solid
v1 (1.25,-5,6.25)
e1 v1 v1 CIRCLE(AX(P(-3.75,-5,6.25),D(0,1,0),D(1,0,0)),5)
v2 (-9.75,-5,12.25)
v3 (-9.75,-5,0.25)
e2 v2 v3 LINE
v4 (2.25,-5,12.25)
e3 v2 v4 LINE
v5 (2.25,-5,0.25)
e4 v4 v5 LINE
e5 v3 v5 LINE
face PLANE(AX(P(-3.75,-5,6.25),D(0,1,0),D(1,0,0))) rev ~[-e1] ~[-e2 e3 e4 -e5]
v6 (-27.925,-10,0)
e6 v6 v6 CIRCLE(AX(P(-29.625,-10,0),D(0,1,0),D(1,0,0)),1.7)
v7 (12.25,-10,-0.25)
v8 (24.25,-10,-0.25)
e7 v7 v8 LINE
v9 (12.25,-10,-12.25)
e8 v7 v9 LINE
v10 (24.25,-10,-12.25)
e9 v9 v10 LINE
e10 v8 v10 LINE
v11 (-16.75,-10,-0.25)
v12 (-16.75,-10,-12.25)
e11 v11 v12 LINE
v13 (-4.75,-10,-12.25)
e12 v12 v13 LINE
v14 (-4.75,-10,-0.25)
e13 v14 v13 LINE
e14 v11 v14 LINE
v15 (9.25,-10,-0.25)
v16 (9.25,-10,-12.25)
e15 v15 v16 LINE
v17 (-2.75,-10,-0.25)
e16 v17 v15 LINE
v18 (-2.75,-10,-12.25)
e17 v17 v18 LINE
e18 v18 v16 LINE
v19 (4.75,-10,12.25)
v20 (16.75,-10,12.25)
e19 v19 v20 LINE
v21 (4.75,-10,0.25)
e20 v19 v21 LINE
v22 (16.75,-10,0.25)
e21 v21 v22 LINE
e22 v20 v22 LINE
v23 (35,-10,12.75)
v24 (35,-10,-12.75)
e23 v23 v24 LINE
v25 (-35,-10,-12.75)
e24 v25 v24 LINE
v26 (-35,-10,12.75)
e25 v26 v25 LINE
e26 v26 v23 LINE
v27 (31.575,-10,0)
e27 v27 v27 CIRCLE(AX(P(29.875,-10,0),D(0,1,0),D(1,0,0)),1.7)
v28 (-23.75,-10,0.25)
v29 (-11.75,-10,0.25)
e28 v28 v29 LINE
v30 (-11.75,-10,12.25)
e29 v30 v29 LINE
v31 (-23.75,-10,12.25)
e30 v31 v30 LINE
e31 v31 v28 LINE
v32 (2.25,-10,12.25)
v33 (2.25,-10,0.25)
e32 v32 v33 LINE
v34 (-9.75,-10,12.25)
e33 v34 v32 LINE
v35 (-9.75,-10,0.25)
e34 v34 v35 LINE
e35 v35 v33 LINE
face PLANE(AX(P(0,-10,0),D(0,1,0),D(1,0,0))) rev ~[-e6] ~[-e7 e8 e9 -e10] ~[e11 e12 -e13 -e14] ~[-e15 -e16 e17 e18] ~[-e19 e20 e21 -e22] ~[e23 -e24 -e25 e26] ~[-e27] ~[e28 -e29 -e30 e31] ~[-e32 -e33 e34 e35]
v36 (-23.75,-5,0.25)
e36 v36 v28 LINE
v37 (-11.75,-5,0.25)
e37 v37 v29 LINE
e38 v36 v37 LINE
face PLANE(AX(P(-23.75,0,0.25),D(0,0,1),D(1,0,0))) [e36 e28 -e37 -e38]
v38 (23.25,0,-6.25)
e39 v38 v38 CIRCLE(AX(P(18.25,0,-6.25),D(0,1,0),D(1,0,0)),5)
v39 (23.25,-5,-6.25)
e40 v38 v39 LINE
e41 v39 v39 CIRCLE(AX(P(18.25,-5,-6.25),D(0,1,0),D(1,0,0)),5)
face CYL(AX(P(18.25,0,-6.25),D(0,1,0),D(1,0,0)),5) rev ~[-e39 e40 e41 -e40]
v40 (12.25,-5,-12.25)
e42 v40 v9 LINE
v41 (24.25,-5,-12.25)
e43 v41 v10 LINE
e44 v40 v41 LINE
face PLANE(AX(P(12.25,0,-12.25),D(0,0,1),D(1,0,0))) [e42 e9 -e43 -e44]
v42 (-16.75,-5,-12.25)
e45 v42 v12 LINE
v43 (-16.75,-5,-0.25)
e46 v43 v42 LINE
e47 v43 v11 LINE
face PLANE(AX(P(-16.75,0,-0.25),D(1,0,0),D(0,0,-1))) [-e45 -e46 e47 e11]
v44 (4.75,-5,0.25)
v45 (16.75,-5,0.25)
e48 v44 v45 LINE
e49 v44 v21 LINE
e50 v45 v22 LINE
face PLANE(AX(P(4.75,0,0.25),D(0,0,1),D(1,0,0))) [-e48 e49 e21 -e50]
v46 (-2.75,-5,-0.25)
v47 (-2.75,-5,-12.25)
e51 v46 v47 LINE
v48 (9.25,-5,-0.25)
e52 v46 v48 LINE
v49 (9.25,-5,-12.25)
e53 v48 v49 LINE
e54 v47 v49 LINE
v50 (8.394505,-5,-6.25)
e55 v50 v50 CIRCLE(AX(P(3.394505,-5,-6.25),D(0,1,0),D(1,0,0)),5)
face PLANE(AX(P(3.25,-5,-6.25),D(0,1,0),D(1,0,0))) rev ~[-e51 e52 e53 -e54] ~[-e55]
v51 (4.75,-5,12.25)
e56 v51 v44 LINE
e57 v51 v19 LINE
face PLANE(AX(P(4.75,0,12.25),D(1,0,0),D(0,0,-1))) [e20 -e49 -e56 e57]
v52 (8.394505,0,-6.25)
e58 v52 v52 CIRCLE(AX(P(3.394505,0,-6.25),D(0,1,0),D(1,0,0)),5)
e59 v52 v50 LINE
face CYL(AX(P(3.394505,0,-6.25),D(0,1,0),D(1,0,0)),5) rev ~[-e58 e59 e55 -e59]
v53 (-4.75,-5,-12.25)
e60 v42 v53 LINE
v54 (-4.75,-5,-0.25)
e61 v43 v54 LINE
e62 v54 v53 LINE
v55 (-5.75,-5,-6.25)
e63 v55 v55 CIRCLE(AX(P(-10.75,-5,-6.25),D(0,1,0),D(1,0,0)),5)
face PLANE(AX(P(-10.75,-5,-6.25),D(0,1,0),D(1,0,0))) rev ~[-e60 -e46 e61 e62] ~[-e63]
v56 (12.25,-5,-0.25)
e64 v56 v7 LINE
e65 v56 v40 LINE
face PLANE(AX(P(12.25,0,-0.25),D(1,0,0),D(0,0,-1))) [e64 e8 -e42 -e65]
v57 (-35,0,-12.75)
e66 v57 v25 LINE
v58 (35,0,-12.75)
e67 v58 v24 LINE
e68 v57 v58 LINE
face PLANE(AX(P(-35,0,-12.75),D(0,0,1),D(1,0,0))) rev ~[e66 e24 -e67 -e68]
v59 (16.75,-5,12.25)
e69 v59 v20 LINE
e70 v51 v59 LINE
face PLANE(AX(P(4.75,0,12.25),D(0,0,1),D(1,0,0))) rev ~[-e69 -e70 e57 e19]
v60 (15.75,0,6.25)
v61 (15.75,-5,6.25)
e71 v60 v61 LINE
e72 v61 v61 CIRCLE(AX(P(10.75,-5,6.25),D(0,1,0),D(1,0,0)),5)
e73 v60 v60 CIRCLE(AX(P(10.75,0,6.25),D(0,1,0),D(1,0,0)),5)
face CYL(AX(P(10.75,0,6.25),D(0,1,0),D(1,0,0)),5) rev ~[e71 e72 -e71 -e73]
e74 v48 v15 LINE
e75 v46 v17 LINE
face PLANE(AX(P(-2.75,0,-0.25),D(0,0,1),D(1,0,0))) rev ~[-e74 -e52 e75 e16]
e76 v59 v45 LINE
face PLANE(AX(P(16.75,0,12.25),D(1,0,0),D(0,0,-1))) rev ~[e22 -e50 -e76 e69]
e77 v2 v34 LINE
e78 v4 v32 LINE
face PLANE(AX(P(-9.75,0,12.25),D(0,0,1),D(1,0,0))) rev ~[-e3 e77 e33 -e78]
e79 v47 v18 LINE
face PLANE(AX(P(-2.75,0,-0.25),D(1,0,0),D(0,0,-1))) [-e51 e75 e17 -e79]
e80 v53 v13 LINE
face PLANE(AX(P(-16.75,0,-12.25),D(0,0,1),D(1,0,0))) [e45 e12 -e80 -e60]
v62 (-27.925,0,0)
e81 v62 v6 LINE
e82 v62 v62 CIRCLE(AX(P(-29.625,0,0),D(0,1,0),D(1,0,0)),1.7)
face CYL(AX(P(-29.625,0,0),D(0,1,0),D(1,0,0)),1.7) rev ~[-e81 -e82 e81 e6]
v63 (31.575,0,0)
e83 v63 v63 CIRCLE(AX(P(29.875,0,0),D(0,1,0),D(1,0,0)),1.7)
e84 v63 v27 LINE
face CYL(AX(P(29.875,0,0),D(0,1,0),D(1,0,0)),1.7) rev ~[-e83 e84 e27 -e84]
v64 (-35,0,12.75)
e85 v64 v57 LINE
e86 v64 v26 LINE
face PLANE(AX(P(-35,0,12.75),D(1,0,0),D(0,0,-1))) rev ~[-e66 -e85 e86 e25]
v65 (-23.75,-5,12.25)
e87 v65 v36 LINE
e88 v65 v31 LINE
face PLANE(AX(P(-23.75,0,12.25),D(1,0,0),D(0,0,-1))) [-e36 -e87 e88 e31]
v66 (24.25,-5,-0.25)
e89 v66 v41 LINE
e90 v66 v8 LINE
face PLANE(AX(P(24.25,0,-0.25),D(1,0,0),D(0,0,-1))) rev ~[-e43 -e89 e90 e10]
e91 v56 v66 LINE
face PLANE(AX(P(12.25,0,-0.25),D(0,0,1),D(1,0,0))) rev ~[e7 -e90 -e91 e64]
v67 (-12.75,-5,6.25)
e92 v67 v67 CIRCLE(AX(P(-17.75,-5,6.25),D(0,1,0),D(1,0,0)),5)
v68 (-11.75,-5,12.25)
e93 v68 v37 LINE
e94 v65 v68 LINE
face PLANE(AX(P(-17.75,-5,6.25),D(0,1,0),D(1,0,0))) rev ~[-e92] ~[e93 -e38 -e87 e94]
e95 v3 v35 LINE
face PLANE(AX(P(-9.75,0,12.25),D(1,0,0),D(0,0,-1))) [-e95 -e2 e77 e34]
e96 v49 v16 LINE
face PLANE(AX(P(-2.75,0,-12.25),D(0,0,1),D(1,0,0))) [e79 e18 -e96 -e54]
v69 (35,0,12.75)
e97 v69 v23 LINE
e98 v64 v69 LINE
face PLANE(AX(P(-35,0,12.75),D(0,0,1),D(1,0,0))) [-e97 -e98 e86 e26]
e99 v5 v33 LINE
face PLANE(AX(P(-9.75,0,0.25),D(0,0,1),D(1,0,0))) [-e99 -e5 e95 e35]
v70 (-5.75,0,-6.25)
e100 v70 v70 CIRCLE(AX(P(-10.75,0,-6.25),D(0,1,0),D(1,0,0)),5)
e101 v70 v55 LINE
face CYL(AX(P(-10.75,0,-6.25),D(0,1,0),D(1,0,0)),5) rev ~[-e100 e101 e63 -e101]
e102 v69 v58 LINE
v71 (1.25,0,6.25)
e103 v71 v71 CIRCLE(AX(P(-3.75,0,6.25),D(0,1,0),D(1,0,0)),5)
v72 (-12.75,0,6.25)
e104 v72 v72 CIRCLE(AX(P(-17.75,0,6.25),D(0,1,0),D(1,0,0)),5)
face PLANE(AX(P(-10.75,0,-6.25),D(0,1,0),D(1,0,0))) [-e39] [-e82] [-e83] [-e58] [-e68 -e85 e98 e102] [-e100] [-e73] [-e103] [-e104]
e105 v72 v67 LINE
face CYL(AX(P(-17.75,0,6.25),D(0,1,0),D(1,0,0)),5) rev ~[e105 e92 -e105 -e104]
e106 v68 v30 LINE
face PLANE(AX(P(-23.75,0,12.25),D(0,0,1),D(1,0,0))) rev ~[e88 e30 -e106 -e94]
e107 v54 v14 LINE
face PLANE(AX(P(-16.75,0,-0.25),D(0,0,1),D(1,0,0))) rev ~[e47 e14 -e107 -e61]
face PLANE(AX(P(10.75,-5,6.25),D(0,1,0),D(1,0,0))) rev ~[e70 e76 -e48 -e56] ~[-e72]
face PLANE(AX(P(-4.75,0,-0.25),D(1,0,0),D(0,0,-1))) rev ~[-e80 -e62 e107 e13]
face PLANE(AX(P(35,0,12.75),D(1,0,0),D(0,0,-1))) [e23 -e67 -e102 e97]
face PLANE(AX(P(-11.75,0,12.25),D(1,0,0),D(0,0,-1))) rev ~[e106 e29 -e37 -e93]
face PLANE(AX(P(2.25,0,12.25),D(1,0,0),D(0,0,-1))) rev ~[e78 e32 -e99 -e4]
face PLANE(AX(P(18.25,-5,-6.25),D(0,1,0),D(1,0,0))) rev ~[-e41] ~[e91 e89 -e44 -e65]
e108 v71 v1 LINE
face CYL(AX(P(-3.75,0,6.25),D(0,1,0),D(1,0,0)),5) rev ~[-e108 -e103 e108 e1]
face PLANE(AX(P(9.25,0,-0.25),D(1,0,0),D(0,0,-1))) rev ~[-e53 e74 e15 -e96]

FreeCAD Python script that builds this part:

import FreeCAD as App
import Part
import Sketcher


def add_polygon(sketch, points):
    """Adds a closed chain of lines whose ends are joined by coincident constraints."""
    first, n = sketch.GeometryCount, len(points)
    for a, b in zip(points, points[1:] + points[:1]):
        sketch.addGeometry(Part.LineSegment(App.Vector(*a, 0), App.Vector(*b, 0)), False)
    for i in range(n):
        sketch.addConstraint(Sketcher.Constraint("Coincident", first + i, 2, first + (i + 1) % n, 1))

doc = App.newDocument("Part")
body = doc.addObject("PartDesign::Body", "Body")

# Sketch on XZ plane
sketch1 = body.newObject("Sketcher::SketchObject", "Sketch")
sketch1.AttachmentSupport = (doc.getObject("XZ_Plane"), [""])
sketch1.MapMode = "FlatFace"
add_polygon(sketch1, [(-35, -12.75), (-35, 12.75), (35, 12.75), (35, -12.75)])  # lines 0-3
add_polygon(sketch1, [(-11.75, 12.25), (-23.75, 12.25), (-23.75, 0.25), (-11.75, 0.25)])  # lines 4-7
add_polygon(sketch1, [(2.25, 12.25), (-9.75, 12.25), (-9.75, 0.25), (2.25, 0.25)])  # lines 8-11
sketch1.addGeometry(Part.Circle(App.Vector(-29.625, 0, 0), App.Vector(0, 0, 1), 1.7), False)  # 12
add_polygon(sketch1, [(16.75, 12.25), (4.75, 12.25), (4.75, 0.25), (16.75, 0.25)])  # lines 13-16
sketch1.addGeometry(Part.Circle(App.Vector(29.875, 0, 0), App.Vector(0, 0, 1), 1.7), False)  # 17
add_polygon(sketch1, [(-4.75, -0.25), (-16.75, -0.25), (-16.75, -12.25), (-4.75, -12.25)])  # lines 18-21
add_polygon(sketch1, [(9.25, -0.25), (-2.75, -0.25), (-2.75, -12.25), (9.25, -12.25)])  # lines 22-25
add_polygon(sketch1, [(24.25, -0.25), (12.25, -0.25), (12.25, -12.25), (24.25, -12.25)])  # lines 26-29
sketch1.addConstraint([
    Sketcher.Constraint("Vertical", 0),
    Sketcher.Constraint("Horizontal", 1),
    Sketcher.Constraint("Vertical", 2),
    Sketcher.Constraint("Horizontal", 3),
    Sketcher.Constraint("Horizontal", 4),
    Sketcher.Constraint("Vertical", 5),
    Sketcher.Constraint("Horizontal", 6),
    Sketcher.Constraint("Vertical", 7),
    Sketcher.Constraint("Horizontal", 8),
    Sketcher.Constraint("Vertical", 9),
    Sketcher.Constraint("Horizontal", 10),
    Sketcher.Constraint("Vertical", 11),
    Sketcher.Constraint("Horizontal", 13),
    Sketcher.Constraint("Vertical", 14),
    Sketcher.Constraint("Horizontal", 15),
    Sketcher.Constraint("Vertical", 16),
    Sketcher.Constraint("Horizontal", 18),
    Sketcher.Constraint("Vertical", 19),
    Sketcher.Constraint("Horizontal", 20),
    Sketcher.Constraint("Vertical", 21),
    Sketcher.Constraint("Horizontal", 22),
    Sketcher.Constraint("Vertical", 23),
    Sketcher.Constraint("Horizontal", 24),
    Sketcher.Constraint("Vertical", 25),
    Sketcher.Constraint("Horizontal", 26),
    Sketcher.Constraint("Vertical", 27),
    Sketcher.Constraint("Horizontal", 28),
    Sketcher.Constraint("Vertical", 29),
    Sketcher.Constraint("Equal", 12, 17),
    Sketcher.Constraint("Symmetric", 0, 2, 2, 2, -1, 1),
    Sketcher.Constraint("Symmetric", 15, 2, 18, 2, -1, 1),
    Sketcher.Constraint("Symmetric", 13, 2, 20, 2, -1, 1),
    Sketcher.Constraint("PointOnObject", 12, 3, -1),
    Sketcher.Constraint("PointOnObject", 17, 3, -1),
    Sketcher.Constraint("Horizontal", 7, 2, 8, 2),
    Sketcher.Constraint("Horizontal", 6, 2, 9, 2),
    Sketcher.Constraint("Horizontal", 11, 2, 13, 2),
    Sketcher.Constraint("Horizontal", 10, 2, 14, 2),
    Sketcher.Constraint("Horizontal", 21, 2, 22, 2),
    Sketcher.Constraint("Horizontal", 20, 2, 23, 2),
    Sketcher.Constraint("Horizontal", 25, 2, 26, 2),
    Sketcher.Constraint("Horizontal", 24, 2, 27, 2),
    Sketcher.Constraint("Equal", 6, 8),
    Sketcher.Constraint("Equal", 10, 13),
    Sketcher.Constraint("Equal", 20, 22),
    Sketcher.Constraint("Equal", 24, 26),
    Sketcher.Constraint("Equal", 28, 5),
    Sketcher.Constraint("Diameter", 12, 3.4),
    Sketcher.Constraint("DistanceX", 1, 1, 1, 2, 70.0),
    Sketcher.Constraint("DistanceX", 4, 2, 4, 1, 12.0),
    Sketcher.Constraint("DistanceY", 0, 1, 0, 2, 25.5),
    Sketcher.Constraint("DistanceY", 3, 2, 4, 2, 25.0),
    Sketcher.Constraint("DistanceX", 7, 2, 8, 2, 2.0),
    Sketcher.Constraint("DistanceX", 18, 2, 6, 2, 5.0),
    Sketcher.Constraint("DistanceX", 21, 2, 22, 2, 2.0),
    Sketcher.Constraint("DistanceX", 25, 2, 26, 2, 3.0),
    Sketcher.Constraint("DistanceX", 12, 3, 17, 3, 59.5),
    Sketcher.Constraint("DistanceX", 11, 2, 13, 2, 2.5),
    Sketcher.Constraint("DistanceX", 12, 3, -1, 1, 29.625),
])
pad1 = body.newObject("PartDesign::Pad", "Pad")
pad1.Profile = sketch1
pad1.Length = 10

# Sketch on XZ plane
sketch2 = body.newObject("Sketcher::SketchObject", "Sketch001")
sketch2.AttachmentSupport = (doc.getObject("XZ_Plane"), [""])
sketch2.MapMode = "FlatFace"
add_polygon(sketch2, [(-16.75, -12.25), (-16.75, -0.25), (-4.75, -0.25), (-4.75, -12.25)])  # lines 0-3
sketch2.addGeometry(Part.Circle(App.Vector(-10.75, -6.25, 0), App.Vector(0, 0, 1), 5), False)  # 4
add_polygon(sketch2, [(-2.75, -12.25), (-2.75, -0.25), (9.25, -0.25), (9.25, -12.25)])  # lines 5-8
sketch2.addGeometry(Part.Circle(App.Vector(3.394505, -6.25, 0), App.Vector(0, 0, 1), 5), False)  # 9
add_polygon(sketch2, [(12.25, -12.25), (12.25, -0.25), (24.25, -0.25), (24.25, -12.25)])  # lines 10-13
sketch2.addGeometry(Part.Circle(App.Vector(18.25, -6.25, 0), App.Vector(0, 0, 1), 5), False)  # 14
add_polygon(sketch2, [(4.75, 0.25), (4.75, 12.25), (16.75, 12.25), (16.75, 0.25)])  # lines 15-18
sketch2.addGeometry(Part.Circle(App.Vector(10.75, 6.25, 0), App.Vector(0, 0, 1), 5), False)  # 19
add_polygon(sketch2, [(-9.75, 0.25), (-9.75, 12.25), (2.25, 12.25), (2.25, 0.25)])  # lines 20-23
sketch2.addGeometry(Part.Circle(App.Vector(-3.75, 6.25, 0), App.Vector(0, 0, 1), 5), False)  # 24
add_polygon(sketch2, [(-23.75, 0.25), (-23.75, 12.25), (-11.75, 12.25), (-11.75, 0.25)])  # lines 25-28
sketch2.addGeometry(Part.Circle(App.Vector(-17.75, 6.25, 0), App.Vector(0, 0, 1), 5), False)  # 29
sketch2.addConstraint([
    Sketcher.Constraint("Vertical", 0),
    Sketcher.Constraint("Horizontal", 1),
    Sketcher.Constraint("Vertical", 2),
    Sketcher.Constraint("Horizontal", 3),
    Sketcher.Constraint("Vertical", 5),
    Sketcher.Constraint("Horizontal", 6),
    Sketcher.Constraint("Vertical", 7),
    Sketcher.Constraint("Horizontal", 8),
    Sketcher.Constraint("Vertical", 10),
    Sketcher.Constraint("Horizontal", 11),
    Sketcher.Constraint("Vertical", 12),
    Sketcher.Constraint("Horizontal", 13),
    Sketcher.Constraint("Vertical", 15),
    Sketcher.Constraint("Horizontal", 16),
    Sketcher.Constraint("Vertical", 17),
    Sketcher.Constraint("Horizontal", 18),
    Sketcher.Constraint("Vertical", 20),
    Sketcher.Constraint("Horizontal", 21),
    Sketcher.Constraint("Vertical", 22),
    Sketcher.Constraint("Horizontal", 23),
    Sketcher.Constraint("Vertical", 25),
    Sketcher.Constraint("Horizontal", 26),
    Sketcher.Constraint("Vertical", 27),
    Sketcher.Constraint("Horizontal", 28),
    Sketcher.Constraint("Equal", 4, 9),
    Sketcher.Constraint("Equal", 9, 14),
    Sketcher.Constraint("Equal", 14, 19),
    Sketcher.Constraint("Equal", 19, 24),
    Sketcher.Constraint("Equal", 24, 29),
    Sketcher.Constraint("Symmetric", 4, 3, 19, 3, -1, 1),
    Sketcher.Constraint("Symmetric", 2, 2, 15, 2, -1, 1),
    Sketcher.Constraint("Symmetric", 0, 2, 17, 2, -1, 1),
    Sketcher.Constraint("Horizontal", 4, 3, 9, 3),
    Sketcher.Constraint("Horizontal", 9, 3, 14, 3),
    Sketcher.Constraint("Horizontal", 19, 3, 24, 3),
    Sketcher.Constraint("Horizontal", 24, 3, 29, 3),
    Sketcher.Constraint("Horizontal", 1, 2, 5, 2),
    Sketcher.Constraint("Horizontal", 3, 2, 7, 2),
    Sketcher.Constraint("Horizontal", 6, 2, 10, 2),
    Sketcher.Constraint("Horizontal", 8, 2, 12, 2),
    Sketcher.Constraint("Horizontal", 16, 2, 20, 2),
    Sketcher.Constraint("Horizontal", 18, 2, 22, 2),
    Sketcher.Constraint("Horizontal", 21, 2, 25, 2),
    Sketcher.Constraint("Horizontal", 23, 2, 27, 2),
    Sketcher.Constraint("Equal", 3, 6),
    Sketcher.Constraint("Equal", 8, 11),
    Sketcher.Constraint("Equal", 18, 21),
    Sketcher.Constraint("Equal", 23, 26),
    Sketcher.Constraint("Equal", 28, 0),
    Sketcher.Constraint("Diameter", 4, 10.0),
    Sketcher.Constraint("DistanceX", 1, 1, 1, 2, 12.0),
    Sketcher.Constraint("DistanceX", 4, 3, 14, 3, 29.0),
    Sketcher.Constraint("DistanceX", 4, 3, 24, 3, 7.0),
    Sketcher.Constraint("DistanceX", 29, 3, 24, 3, 14.0),
    Sketcher.Constraint("DistanceX", 29, 3, 0, 2, 1.0),
    Sketcher.Constraint("DistanceY", 4, 3, 0, 2, 6.0),
    Sketcher.Constraint("DistanceX", 1, 2, 5, 2, 2.0),
    Sketcher.Constraint("DistanceX", 6, 2, 10, 2, 3.0),
    Sketcher.Constraint("DistanceX", 20, 2, 24, 3, 6.0),
    Sketcher.Constraint("DistanceX", 25, 2, 29, 3, 6.0),
    Sketcher.Constraint("DistanceY", 9, 3, 19, 3, 12.5),
    Sketcher.Constraint("DistanceX", 19, 3, 14, 3, 7.5),
    Sketcher.Constraint("DistanceX", -1, 1, 9, 3, 3.394505),
])
pad2 = body.newObject("PartDesign::Pad", "Pad001")
pad2.Profile = sketch2
pad2.Length = 5

doc.recompute()
